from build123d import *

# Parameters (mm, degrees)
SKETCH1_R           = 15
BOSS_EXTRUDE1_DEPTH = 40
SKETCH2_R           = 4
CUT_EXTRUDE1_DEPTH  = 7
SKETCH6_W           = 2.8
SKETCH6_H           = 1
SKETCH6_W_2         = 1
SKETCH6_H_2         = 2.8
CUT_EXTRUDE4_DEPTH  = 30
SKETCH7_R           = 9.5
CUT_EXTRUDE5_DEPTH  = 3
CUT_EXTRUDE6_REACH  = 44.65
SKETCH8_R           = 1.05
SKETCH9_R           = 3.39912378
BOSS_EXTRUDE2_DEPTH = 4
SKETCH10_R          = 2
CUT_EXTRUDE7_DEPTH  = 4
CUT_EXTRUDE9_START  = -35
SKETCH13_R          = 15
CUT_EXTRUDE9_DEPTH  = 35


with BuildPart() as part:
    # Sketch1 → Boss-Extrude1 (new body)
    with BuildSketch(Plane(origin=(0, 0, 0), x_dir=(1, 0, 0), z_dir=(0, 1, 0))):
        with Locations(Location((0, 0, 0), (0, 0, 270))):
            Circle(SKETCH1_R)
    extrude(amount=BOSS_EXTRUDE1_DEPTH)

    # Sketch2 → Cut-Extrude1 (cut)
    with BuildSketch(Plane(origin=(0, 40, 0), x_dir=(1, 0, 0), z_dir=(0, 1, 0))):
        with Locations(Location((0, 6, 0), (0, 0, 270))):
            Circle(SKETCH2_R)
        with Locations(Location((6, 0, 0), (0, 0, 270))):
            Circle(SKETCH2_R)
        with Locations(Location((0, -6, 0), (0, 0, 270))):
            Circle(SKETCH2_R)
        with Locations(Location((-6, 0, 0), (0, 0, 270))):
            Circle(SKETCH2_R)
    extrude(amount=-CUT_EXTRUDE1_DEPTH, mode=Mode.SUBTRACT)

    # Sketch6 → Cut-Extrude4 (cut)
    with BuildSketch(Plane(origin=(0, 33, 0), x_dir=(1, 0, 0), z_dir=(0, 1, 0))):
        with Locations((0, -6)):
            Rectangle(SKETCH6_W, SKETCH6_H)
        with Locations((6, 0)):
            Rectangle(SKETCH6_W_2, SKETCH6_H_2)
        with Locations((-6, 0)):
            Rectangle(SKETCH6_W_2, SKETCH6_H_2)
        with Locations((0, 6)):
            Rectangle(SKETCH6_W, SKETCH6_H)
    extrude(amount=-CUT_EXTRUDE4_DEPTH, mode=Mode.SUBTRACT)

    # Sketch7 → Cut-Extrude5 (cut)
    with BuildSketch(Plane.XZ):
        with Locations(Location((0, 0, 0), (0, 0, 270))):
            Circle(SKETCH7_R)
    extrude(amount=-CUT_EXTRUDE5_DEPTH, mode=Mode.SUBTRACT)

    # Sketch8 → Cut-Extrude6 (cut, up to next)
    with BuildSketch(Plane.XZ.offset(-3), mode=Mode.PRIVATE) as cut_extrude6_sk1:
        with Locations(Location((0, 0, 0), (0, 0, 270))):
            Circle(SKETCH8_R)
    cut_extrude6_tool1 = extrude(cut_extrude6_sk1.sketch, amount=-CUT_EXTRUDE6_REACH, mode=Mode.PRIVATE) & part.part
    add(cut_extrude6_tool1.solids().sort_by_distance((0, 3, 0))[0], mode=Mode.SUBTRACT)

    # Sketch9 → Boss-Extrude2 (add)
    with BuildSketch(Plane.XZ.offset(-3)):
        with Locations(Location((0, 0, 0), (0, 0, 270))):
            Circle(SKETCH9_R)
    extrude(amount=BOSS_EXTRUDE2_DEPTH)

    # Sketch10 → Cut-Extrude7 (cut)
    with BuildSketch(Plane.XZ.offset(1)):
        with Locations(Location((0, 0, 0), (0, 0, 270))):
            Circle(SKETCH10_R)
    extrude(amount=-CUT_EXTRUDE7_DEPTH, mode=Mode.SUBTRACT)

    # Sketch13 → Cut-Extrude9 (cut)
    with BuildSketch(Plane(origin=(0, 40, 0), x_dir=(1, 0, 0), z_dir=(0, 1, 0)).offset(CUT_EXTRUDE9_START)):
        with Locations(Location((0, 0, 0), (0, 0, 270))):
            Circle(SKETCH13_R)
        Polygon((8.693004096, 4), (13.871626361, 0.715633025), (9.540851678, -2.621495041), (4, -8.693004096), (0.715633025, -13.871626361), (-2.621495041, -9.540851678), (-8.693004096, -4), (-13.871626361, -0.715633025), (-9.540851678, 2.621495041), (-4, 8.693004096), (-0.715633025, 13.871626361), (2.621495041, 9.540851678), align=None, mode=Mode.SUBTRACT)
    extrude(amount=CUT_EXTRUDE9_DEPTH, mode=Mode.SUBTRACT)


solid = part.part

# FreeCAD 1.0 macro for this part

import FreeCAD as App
import Part
import Sketcher


def add_polygon(sketch, points):
    """Adds a closed chain of lines whose ends are joined by coincident constraints."""
    first, n = sketch.GeometryCount, len(points)
    for a, b in zip(points, points[1:] + points[:1]):
        sketch.addGeometry(Part.LineSegment(App.Vector(*a, 0), App.Vector(*b, 0)), False)
    for i in range(n):
        sketch.addConstraint(Sketcher.Constraint("Coincident", first + i, 2, first + (i + 1) % n, 1))

doc = App.newDocument("Part")
body = doc.addObject("PartDesign::Body", "Body")

# Sketch on XZ plane
sketch1 = body.newObject("Sketcher::SketchObject", "Sketch")
sketch1.AttachmentSupport = (doc.getObject("XZ_Plane"), [""])
sketch1.MapMode = "FlatFace"
sketch1.addGeometry(Part.Circle(App.Vector(0, 0, 0), App.Vector(0, 0, 1), 15), False)
sketch1.addConstraint([
    Sketcher.Constraint("Coincident", 0, 3, -1, 1),
    Sketcher.Constraint("Diameter", 0, 30.0),
])
pad1 = body.newObject("PartDesign::Pad", "Pad")
pad1.Profile = sketch1
pad1.Length = 40
pad1.Reversed = True

# Sketch on XZ plane
sketch2 = body.newObject("Sketcher::SketchObject", "Sketch001")
sketch2.AttachmentSupport = (doc.getObject("XZ_Plane"), [""])
sketch2.MapMode = "FlatFace"
sketch2.AttachmentOffset = App.Placement(App.Vector(0, 0, -40), App.Rotation())
sketch2.addGeometry([
    Part.Circle(App.Vector(0, -6, 0), App.Vector(0, 0, 1), 4),
    Part.Circle(App.Vector(6, 0, 0), App.Vector(0, 0, 1), 4),
    Part.Circle(App.Vector(0, 6, 0), App.Vector(0, 0, 1), 4),
    Part.Circle(App.Vector(-6, 0, 0), App.Vector(0, 0, 1), 4),
], False)
sketch2.addConstraint([
    Sketcher.Constraint("Equal", 0, 1),
    Sketcher.Constraint("Equal", 1, 2),
    Sketcher.Constraint("Equal", 2, 3),
    Sketcher.Constraint("Symmetric", 0, 3, 2, 3, -1, 1),
    Sketcher.Constraint("Symmetric", 1, 3, 3, 3, -1, 1),
    Sketcher.Constraint("PointOnObject", 0, 3, -2),
    Sketcher.Constraint("PointOnObject", 1, 3, -1),
    Sketcher.Constraint("Diameter", 0, 8.0),
    Sketcher.Constraint("DistanceY", 0, 3, -1, 1, 6.0),
    Sketcher.Constraint("DistanceX", -1, 1, 1, 3, 6.0),
])
pocket1 = body.newObject("PartDesign::Pocket", "Pocket")
pocket1.Profile = sketch2
pocket1.Length = 7
pocket1.Reversed = True

# Sketch on XZ plane
sketch3 = body.newObject("Sketcher::SketchObject", "Sketch002")
sketch3.AttachmentSupport = (doc.getObject("XZ_Plane"), [""])
sketch3.MapMode = "FlatFace"
sketch3.AttachmentOffset = App.Placement(App.Vector(0, 0, -33), App.Rotation())
add_polygon(sketch3, [(-1.4, 5.5), (-1.4, 6.5), (1.4, 6.5), (1.4, 5.5)])  # lines 0-3
add_polygon(sketch3, [(5.5, -1.4), (5.5, 1.4), (6.5, 1.4), (6.5, -1.4)])  # lines 4-7
add_polygon(sketch3, [(-6.5, -1.4), (-6.5, 1.4), (-5.5, 1.4), (-5.5, -1.4)])  # lines 8-11
add_polygon(sketch3, [(-1.4, -6.5), (-1.4, -5.5), (1.4, -5.5), (1.4, -6.5)])  # lines 12-15
sketch3.addConstraint([
    Sketcher.Constraint("Vertical", 0),
    Sketcher.Constraint("Horizontal", 1),
    Sketcher.Constraint("Vertical", 2),
    Sketcher.Constraint("Horizontal", 3),
    Sketcher.Constraint("Vertical", 4),
    Sketcher.Constraint("Horizontal", 5),
    Sketcher.Constraint("Vertical", 6),
    Sketcher.Constraint("Horizontal", 7),
    Sketcher.Constraint("Vertical", 8),
    Sketcher.Constraint("Horizontal", 9),
    Sketcher.Constraint("Vertical", 10),
    Sketcher.Constraint("Horizontal", 11),
    Sketcher.Constraint("Vertical", 12),
    Sketcher.Constraint("Horizontal", 13),
    Sketcher.Constraint("Vertical", 14),
    Sketcher.Constraint("Horizontal", 15),
    Sketcher.Constraint("Symmetric", 6, 2, 8, 2, -1, 1),
    Sketcher.Constraint("Symmetric", 4, 2, 10, 2, -1, 1),
    Sketcher.Constraint("Symmetric", 2, 2, 12, 2, -1, 1),
    Sketcher.Constraint("Symmetric", 0, 2, 14, 2, -1, 1),
    Sketcher.Constraint("Horizontal", 5, 2, 8, 2),
    Sketcher.Constraint("Vertical", 3, 2, 12, 2),
    Sketcher.Constraint("Equal", 11, 0),
    Sketcher.Constraint("Equal", 15, 4),
    Sketcher.Constraint("DistanceX", 5, 1, 5, 2, 1.0),
    Sketcher.Constraint("DistanceX", 1, 1, 1, 2, 2.8),
    Sketcher.Constraint("DistanceX", 8, 2, 4, 2, 12.0),
    Sketcher.Constraint("DistanceY", -1, 1, 0, 2, 6.5),
])
pocket2 = body.newObject("PartDesign::Pocket", "Pocket001")
pocket2.Profile = sketch3
pocket2.Length = 30
pocket2.Reversed = True

# Sketch on XZ plane
sketch4 = body.newObject("Sketcher::SketchObject", "Sketch003")
sketch4.AttachmentSupport = (doc.getObject("XZ_Plane"), [""])
sketch4.MapMode = "FlatFace"
sketch4.addGeometry(Part.Circle(App.Vector(0, 0, 0), App.Vector(0, 0, 1), 10), False)
sketch4.addConstraint([
    Sketcher.Constraint("Coincident", 0, 3, -1, 1),
    Sketcher.Constraint("Diameter", 0, 19.0),
])
pocket3 = body.newObject("PartDesign::Pocket", "Pocket002")
pocket3.Profile = sketch4
pocket3.Length = 3

# Sketch on XZ plane
sketch5 = body.newObject("Sketcher::SketchObject", "Sketch004")
sketch5.AttachmentSupport = (doc.getObject("XZ_Plane"), [""])
sketch5.MapMode = "FlatFace"
sketch5.AttachmentOffset = App.Placement(App.Vector(0, 0, -3), App.Rotation())
sketch5.addGeometry(Part.Circle(App.Vector(0, 0, 0), App.Vector(0, 0, 1), 1.1), False)
sketch5.addConstraint([
    Sketcher.Constraint("Coincident", 0, 3, -1, 1),
    Sketcher.Constraint("Diameter", 0, 2.1),
])
pocket4 = body.newObject("PartDesign::Pocket", "Pocket003")
pocket4.Profile = sketch5
pocket4.Type = "UpToFirst"

# Sketch on XZ plane
sketch6 = body.newObject("Sketcher::SketchObject", "Sketch005")
sketch6.AttachmentSupport = (doc.getObject("XZ_Plane"), [""])
sketch6.MapMode = "FlatFace"
sketch6.AttachmentOffset = App.Placement(App.Vector(0, 0, -3), App.Rotation())
sketch6.addGeometry(Part.Circle(App.Vector(0, 0, 0), App.Vector(0, 0, 1), 3.4), False)
sketch6.addConstraint([
    Sketcher.Constraint("Coincident", 0, 3, -1, 1),
    Sketcher.Constraint("Diameter", 0, 6.798248),
])
pad2 = body.newObject("PartDesign::Pad", "Pad001")
pad2.Profile = sketch6
pad2.Length = 4

# Sketch on XZ plane
sketch7 = body.newObject("Sketcher::SketchObject", "Sketch006")
sketch7.AttachmentSupport = (doc.getObject("XZ_Plane"), [""])
sketch7.MapMode = "FlatFace"
sketch7.AttachmentOffset = App.Placement(App.Vector(0, 0, 1), App.Rotation())
sketch7.addGeometry(Part.Circle(App.Vector(0, 0, 0), App.Vector(0, 0, 1), 2), False)
sketch7.addConstraint([
    Sketcher.Constraint("Coincident", 0, 3, -1, 1),
    Sketcher.Constraint("Diameter", 0, 4.0),
])
pocket5 = body.newObject("PartDesign::Pocket", "Pocket004")
pocket5.Profile = sketch7
pocket5.Length = 4

# Sketch on XZ plane
sketch8 = body.newObject("Sketcher::SketchObject", "Sketch007")
sketch8.AttachmentSupport = (doc.getObject("XZ_Plane"), [""])
sketch8.MapMode = "FlatFace"
sketch8.AttachmentOffset = App.Placement(App.Vector(0, 0, -5), App.Rotation())
sketch8.addGeometry(Part.Circle(App.Vector(0, 0, 0), App.Vector(0, 0, 1), 15), False)  # 0
add_polygon(sketch8, [(3, -10), (9, -4), (14, -1), (10, 3), (4, 9), (1, 14), (-3, 10), (-9, 4), (-14, 1), (-10, -3), (-4, -9), (-1, -14)])  # lines 1-12
sketch8.addConstraint([
    Sketcher.Constraint("Coincident", 0, 3, -1, 1),
    Sketcher.Constraint("Symmetric", 1, 2, 7, 2, -1, 1),
    Sketcher.Constraint("Symmetric", 2, 2, 8, 2, -1, 1),
    Sketcher.Constraint("Symmetric", 3, 2, 9, 2, -1, 1),
    Sketcher.Constraint("Symmetric", 4, 2, 10, 2, -1, 1),
    Sketcher.Constraint("Symmetric", 5, 2, 11, 2, -1, 1),
    Sketcher.Constraint("Symmetric", 6, 2, 12, 2, -1, 1),
    Sketcher.Constraint("Perpendicular", 1, 4),
    Sketcher.Constraint("Perpendicular", 2, 5),
    Sketcher.Constraint("Perpendicular", 3, 6),
    Sketcher.Constraint("Equal", 1, 4),
    Sketcher.Constraint("Equal", 2, 5),
    Sketcher.Constraint("Equal", 3, 6),
    Sketcher.Constraint("Diameter", 0, 30.0),
    Sketcher.Constraint("DistanceY", 1, 2, -1, 1, 4.0),
    Sketcher.Constraint("DistanceX", 6, 2, 1, 2, 11.314499),
    Sketcher.Constraint("Distance", 1, 8.219748),
    Sketcher.Constraint("Distance", 3, 5.467361),
    Sketcher.Constraint("DistanceX", -1, 1, 3, 2, 9.540852),
    Sketcher.Constraint("DistanceY", 2, 2, 3, 2, 3.337128),
])
pocket6 = body.newObject("PartDesign::Pocket", "Pocket005")
pocket6.Profile = sketch8
pocket6.Length = 35

doc.recompute()
